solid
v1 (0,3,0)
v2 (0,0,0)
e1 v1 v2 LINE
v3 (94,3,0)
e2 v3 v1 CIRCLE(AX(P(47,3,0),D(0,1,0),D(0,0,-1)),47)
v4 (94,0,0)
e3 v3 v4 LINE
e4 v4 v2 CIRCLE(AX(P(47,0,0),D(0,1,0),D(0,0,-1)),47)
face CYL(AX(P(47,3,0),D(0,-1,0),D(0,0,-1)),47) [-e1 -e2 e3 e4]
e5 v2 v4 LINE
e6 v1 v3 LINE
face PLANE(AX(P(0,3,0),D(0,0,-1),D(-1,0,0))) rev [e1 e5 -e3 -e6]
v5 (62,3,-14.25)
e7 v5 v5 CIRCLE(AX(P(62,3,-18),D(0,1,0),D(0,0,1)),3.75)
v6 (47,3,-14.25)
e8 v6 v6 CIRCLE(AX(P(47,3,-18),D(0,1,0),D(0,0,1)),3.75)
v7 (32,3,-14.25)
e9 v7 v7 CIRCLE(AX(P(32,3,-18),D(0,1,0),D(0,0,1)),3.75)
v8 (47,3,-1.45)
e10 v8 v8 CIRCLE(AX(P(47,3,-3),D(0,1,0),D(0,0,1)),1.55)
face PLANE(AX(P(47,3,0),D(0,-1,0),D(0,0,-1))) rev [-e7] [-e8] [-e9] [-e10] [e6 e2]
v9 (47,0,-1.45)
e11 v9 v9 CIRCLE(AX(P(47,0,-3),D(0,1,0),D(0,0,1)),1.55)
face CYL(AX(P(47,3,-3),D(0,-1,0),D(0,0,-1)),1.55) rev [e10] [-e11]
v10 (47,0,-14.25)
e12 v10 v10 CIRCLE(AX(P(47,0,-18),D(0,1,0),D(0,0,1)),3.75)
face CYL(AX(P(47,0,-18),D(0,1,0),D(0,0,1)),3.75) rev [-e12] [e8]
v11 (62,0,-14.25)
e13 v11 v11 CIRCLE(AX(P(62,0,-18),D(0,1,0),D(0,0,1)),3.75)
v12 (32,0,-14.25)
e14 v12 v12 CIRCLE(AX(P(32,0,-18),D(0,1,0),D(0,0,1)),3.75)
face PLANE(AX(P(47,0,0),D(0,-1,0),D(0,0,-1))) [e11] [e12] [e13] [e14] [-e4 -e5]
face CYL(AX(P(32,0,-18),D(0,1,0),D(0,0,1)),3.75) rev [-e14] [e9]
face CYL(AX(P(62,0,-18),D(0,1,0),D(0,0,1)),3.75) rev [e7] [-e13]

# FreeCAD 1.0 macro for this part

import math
import FreeCAD as App
import Part
import Sketcher

doc = App.newDocument("Part")
body = doc.addObject("PartDesign::Body", "Body")

sketch1 = body.newObject("Sketcher::SketchObject", "Sketch")
sketch1.AttachmentSupport = (doc.getObject("XZ_Plane"), [""])
sketch1.MapMode = "FlatFace"
sketch1.addGeometry(Part.LineSegment(App.Vector(0, 0, 0), App.Vector(94, 0, 0)), False)
sketch1.addGeometry(Part.ArcOfCircle(Part.Circle(App.Vector(47, 0, 0), App.Vector(0, 0, 1), 47), math.radians(180), math.radians(360)), False)
sketch1.addGeometry(Part.Circle(App.Vector(47, -3, 0), App.Vector(0, 0, 1), 1.55), False)
sketch1.addConstraint(Sketcher.Constraint("Coincident", 0, 1, 1, 1))
sketch1.addConstraint(Sketcher.Constraint("Coincident", 1, 2, 0, 2))
sketch1.addConstraint(Sketcher.Constraint("Horizontal", 0))
sketch1.addConstraint(Sketcher.Constraint("Coincident", 0, 1, -1, 1))
sketch1.addConstraint(Sketcher.Constraint("PointOnObject", 1, 3, -1))
sketch1.addConstraint(Sketcher.Constraint("Vertical", 1, 3, 2, 3))
sketch1.addConstraint(Sketcher.Constraint("Radius", 1, 47.0))
sketch1.addConstraint(Sketcher.Constraint("Diameter", 2, 3.1))
sketch1.addConstraint(Sketcher.Constraint("DistanceY", 2, 3, -1, 1, 3.0))
pad1 = body.newObject("PartDesign::Pad", "Pad")
pad1.Profile = sketch1
pad1.Length = 3
pad1.Reversed = True

sketch2 = body.newObject("Sketcher::SketchObject", "Sketch001")
sketch2.AttachmentSupport = (doc.getObject("XZ_Plane"), [""])
sketch2.MapMode = "FlatFace"
sketch2.AttachmentOffset = App.Placement(App.Vector(0, 0, -3), App.Rotation())
sketch2.addGeometry(Part.Circle(App.Vector(47, -18, 0), App.Vector(0, 0, 1), 3.75), False)
sketch2.addGeometry(Part.Circle(App.Vector(32, -18, 0), App.Vector(0, 0, 1), 3.75), False)
sketch2.addGeometry(Part.Circle(App.Vector(62, -18, 0), App.Vector(0, 0, 1), 3.75), False)
sketch2.addConstraint(Sketcher.Constraint("Equal", 0, 1))
sketch2.addConstraint(Sketcher.Constraint("Equal", 1, 2))
sketch2.addConstraint(Sketcher.Constraint("Horizontal", 0, 3, 1, 3))
sketch2.addConstraint(Sketcher.Constraint("Horizontal", 1, 3, 2, 3))
sketch2.addConstraint(Sketcher.Constraint("Diameter", 0, 7.5))
sketch2.addConstraint(Sketcher.Constraint("DistanceX", -1, 1, 0, 3, 47.0))
sketch2.addConstraint(Sketcher.Constraint("DistanceY", 0, 3, -1, 1, 18.0))
sketch2.addConstraint(Sketcher.Constraint("DistanceX", -1, 1, 1, 3, 32.0))
sketch2.addConstraint(Sketcher.Constraint("DistanceX", -1, 1, 2, 3, 62.0))
pocket1 = body.newObject("PartDesign::Pocket", "Pocket")
pocket1.Profile = sketch2
pocket1.Length = 3
pocket1.Reversed = True

doc.recompute()
